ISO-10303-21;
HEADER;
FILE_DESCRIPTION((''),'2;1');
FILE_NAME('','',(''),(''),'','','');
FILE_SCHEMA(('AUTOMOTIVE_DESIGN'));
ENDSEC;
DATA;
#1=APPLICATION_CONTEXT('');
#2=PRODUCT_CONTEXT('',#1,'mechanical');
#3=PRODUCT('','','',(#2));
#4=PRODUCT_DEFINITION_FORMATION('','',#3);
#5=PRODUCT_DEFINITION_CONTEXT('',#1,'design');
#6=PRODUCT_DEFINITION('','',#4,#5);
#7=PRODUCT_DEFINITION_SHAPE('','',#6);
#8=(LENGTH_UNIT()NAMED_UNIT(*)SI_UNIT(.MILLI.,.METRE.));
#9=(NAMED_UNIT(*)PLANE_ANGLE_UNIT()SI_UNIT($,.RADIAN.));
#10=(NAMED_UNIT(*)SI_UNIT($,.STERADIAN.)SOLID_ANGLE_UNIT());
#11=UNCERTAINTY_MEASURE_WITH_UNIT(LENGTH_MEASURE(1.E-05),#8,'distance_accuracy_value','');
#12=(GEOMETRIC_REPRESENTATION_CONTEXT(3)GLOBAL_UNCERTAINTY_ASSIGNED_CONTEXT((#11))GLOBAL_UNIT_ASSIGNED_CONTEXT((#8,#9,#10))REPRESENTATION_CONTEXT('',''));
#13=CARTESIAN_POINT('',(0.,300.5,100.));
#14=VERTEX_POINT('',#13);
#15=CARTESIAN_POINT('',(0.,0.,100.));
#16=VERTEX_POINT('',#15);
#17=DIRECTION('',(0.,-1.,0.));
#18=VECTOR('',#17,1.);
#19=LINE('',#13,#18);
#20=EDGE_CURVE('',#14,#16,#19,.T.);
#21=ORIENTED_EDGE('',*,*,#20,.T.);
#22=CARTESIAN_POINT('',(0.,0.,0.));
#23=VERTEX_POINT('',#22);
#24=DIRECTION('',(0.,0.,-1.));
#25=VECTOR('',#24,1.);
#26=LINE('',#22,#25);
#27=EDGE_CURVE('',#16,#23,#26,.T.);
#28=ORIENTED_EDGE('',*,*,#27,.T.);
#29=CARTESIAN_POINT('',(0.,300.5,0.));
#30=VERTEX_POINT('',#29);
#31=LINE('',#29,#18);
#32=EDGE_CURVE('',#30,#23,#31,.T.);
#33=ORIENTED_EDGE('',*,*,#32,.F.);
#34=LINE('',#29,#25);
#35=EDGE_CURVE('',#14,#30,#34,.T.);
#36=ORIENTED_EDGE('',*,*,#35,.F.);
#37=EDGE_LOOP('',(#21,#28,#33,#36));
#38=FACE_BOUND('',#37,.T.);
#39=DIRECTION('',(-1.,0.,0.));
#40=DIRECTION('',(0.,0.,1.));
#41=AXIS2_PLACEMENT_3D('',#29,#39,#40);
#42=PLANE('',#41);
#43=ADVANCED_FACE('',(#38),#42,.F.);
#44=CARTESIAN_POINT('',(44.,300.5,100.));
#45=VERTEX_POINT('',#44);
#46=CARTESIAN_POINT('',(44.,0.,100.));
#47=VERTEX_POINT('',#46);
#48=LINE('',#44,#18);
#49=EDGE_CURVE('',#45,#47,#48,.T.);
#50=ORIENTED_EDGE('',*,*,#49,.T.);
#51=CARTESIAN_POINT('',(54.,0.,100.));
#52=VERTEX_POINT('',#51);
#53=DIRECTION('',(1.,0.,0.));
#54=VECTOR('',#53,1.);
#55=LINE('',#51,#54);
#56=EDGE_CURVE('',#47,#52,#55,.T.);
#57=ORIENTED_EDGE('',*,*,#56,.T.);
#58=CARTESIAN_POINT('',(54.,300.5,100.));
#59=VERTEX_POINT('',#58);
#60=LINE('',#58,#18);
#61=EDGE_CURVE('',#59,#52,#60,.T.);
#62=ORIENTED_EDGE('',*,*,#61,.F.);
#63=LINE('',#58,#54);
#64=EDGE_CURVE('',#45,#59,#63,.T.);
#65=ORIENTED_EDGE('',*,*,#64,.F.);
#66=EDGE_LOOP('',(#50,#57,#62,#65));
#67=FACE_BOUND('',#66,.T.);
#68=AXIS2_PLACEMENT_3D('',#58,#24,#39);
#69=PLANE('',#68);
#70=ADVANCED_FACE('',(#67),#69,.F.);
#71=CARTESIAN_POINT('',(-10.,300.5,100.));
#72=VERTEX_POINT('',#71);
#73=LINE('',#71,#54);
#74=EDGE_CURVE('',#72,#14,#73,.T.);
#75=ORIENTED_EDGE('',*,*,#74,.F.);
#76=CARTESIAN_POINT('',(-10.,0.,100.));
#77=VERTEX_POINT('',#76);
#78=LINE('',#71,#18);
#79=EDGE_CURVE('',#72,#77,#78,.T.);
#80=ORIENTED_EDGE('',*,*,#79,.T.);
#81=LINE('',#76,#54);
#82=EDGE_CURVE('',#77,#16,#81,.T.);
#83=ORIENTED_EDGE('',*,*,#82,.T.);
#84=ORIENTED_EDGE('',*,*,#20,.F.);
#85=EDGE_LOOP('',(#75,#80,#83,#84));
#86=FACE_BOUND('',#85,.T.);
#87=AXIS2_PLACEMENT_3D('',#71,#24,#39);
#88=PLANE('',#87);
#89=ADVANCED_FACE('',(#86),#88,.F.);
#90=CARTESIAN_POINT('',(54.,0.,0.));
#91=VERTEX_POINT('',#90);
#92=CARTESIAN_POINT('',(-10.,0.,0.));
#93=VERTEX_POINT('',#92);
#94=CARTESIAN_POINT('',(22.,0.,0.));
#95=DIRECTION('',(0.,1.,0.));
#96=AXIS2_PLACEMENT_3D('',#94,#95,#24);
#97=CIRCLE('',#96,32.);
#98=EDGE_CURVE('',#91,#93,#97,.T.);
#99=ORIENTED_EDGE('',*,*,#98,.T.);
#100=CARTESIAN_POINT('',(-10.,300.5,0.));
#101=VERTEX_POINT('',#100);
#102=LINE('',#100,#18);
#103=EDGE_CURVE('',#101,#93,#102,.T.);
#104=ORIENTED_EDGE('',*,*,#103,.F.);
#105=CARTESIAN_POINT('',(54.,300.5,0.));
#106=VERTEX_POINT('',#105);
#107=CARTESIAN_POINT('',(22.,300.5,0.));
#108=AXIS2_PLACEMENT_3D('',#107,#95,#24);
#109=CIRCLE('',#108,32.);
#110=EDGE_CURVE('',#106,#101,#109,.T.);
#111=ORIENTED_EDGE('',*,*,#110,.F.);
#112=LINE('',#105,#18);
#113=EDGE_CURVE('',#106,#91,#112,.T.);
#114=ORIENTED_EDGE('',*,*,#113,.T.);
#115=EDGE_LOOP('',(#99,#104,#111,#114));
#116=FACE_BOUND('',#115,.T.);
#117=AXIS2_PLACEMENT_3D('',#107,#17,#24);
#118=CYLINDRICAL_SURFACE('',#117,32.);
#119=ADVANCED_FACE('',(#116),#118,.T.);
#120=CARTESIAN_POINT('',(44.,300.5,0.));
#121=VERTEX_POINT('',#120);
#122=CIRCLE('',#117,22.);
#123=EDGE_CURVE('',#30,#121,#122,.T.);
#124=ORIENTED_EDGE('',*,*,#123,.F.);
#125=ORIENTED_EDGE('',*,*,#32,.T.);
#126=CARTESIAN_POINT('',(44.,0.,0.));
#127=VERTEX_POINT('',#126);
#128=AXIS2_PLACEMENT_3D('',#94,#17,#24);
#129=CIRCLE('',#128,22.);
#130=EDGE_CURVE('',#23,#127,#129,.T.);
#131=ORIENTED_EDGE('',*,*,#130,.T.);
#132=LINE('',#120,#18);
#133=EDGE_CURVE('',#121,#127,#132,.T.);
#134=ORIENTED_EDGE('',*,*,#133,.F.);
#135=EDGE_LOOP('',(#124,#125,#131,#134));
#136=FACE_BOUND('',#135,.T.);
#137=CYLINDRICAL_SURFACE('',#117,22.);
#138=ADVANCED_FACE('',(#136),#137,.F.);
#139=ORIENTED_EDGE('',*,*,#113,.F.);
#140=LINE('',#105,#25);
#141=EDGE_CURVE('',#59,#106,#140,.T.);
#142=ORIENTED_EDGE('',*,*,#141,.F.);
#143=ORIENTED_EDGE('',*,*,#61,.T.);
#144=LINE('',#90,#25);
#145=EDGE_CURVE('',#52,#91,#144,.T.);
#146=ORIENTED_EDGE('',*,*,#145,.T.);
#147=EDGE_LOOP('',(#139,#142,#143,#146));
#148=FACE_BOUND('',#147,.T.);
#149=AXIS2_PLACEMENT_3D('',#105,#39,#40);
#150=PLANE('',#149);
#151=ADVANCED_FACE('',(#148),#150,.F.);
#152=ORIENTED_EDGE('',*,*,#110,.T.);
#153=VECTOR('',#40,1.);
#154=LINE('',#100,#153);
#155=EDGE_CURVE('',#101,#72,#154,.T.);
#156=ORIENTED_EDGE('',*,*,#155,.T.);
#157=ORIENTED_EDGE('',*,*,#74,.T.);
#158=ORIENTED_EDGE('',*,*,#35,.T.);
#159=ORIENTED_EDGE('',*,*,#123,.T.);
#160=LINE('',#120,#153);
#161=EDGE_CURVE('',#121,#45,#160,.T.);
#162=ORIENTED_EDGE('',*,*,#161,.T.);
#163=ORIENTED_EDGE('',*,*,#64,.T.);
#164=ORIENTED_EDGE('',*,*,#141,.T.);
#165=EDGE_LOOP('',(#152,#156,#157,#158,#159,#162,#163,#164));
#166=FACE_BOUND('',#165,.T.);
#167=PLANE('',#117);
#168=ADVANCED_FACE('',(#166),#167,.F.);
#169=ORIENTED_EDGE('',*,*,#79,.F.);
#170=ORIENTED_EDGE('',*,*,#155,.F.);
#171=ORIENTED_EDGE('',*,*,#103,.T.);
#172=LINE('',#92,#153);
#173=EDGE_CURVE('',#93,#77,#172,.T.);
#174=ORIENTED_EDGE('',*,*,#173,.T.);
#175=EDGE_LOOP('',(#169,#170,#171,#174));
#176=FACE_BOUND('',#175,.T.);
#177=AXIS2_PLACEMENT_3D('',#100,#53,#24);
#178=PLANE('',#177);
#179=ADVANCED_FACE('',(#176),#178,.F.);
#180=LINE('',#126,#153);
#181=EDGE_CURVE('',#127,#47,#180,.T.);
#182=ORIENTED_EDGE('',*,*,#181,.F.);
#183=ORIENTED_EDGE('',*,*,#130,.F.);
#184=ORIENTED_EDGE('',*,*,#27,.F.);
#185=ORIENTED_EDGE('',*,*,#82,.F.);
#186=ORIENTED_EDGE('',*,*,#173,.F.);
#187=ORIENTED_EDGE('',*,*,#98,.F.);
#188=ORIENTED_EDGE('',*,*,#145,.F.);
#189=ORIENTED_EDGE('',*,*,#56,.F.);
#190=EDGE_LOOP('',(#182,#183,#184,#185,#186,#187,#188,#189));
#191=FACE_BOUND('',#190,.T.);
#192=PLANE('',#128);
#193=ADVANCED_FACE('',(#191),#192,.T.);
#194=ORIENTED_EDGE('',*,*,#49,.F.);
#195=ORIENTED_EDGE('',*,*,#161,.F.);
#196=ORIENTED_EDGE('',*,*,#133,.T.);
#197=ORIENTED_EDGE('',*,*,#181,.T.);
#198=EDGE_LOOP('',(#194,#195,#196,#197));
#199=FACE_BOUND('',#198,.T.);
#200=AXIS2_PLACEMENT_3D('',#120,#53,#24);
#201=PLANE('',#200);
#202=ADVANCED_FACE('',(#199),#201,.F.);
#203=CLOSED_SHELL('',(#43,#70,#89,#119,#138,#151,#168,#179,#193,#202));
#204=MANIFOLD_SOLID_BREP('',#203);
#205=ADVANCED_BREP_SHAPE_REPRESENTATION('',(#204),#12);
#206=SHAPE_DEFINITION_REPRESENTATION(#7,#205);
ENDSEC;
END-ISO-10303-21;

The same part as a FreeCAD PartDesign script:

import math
import FreeCAD as App
import Part
import Sketcher
from FreeCAD import Vector
Q = App.Units.Quantity

doc = App.newDocument("Part")
body = doc.addObject("PartDesign::Body", "Body")

sketch1 = doc.addObject("Sketcher::SketchObject", "Sketch")
body.addObject(sketch1)
sketch1.AttachmentSupport = (doc.XZ_Plane, [""])
sketch1.MapMode = "FlatFace"
sketch1.addGeometry([
    Part.LineSegment(Vector(0, 100, 0), Vector(0, 0, 0)),
    Part.ArcOfCircle(Part.Circle(Vector(22, 0, 0), Vector(0, 0, 1), 22), math.radians(180), math.radians(360)),
    Part.LineSegment(Vector(44, 0, 0), Vector(44, 100, 0)),
    Part.LineSegment(Vector(44, 100, 0), Vector(54, 100, 0)),
    Part.LineSegment(Vector(54, 100, 0), Vector(54, 0, 0)),
    Part.ArcOfCircle(Part.Circle(Vector(22, 0, 0), Vector(0, 0, 1), 32), math.radians(180), math.radians(360)),
    Part.LineSegment(Vector(-10, 0, 0), Vector(-10, 100, 0)),
    Part.LineSegment(Vector(-10, 100, 0), Vector(0, 100, 0)),
], False)
sketch1.addConstraint([
    Sketcher.Constraint("Tangent", 0, 2, 1, 1),
    Sketcher.Constraint("Tangent", 1, 2, 2, 1),
    Sketcher.Constraint("Coincident", 2, 2, 3, 1),
    Sketcher.Constraint("Coincident", 3, 2, 4, 1),
    Sketcher.Constraint("Tangent", 4, 2, 5, 2),
    Sketcher.Constraint("Tangent", 5, 1, 6, 1),
    Sketcher.Constraint("Coincident", 6, 2, 7, 1),
    Sketcher.Constraint("Coincident", 7, 2, 0, 1),
    Sketcher.Constraint("Vertical", 0),
    Sketcher.Constraint("Vertical", 2),
    Sketcher.Constraint("Horizontal", 3),
    Sketcher.Constraint("Vertical", 4),
    Sketcher.Constraint("Vertical", 6),
    Sketcher.Constraint("Horizontal", 7),
    Sketcher.Constraint("Coincident", 0, 2, -1, 1),
    Sketcher.Constraint("Coincident", 5, 3, 1, 3),
    Sketcher.Constraint("Horizontal", 3, 2, 6, 2),
    Sketcher.Constraint("Radius", 1, Q("22 mm")),
    Sketcher.Constraint("Radius", 5, Q("32 mm")),
    Sketcher.Constraint("DistanceY", 0, 2, 0, 1, Q("100 mm")),
])
pad1 = doc.addObject("PartDesign::Pad", "Pad")
body.addObject(pad1)
pad1.Profile = sketch1
pad1.Length = 300.5
pad1.Reversed = True

doc.recompute()
